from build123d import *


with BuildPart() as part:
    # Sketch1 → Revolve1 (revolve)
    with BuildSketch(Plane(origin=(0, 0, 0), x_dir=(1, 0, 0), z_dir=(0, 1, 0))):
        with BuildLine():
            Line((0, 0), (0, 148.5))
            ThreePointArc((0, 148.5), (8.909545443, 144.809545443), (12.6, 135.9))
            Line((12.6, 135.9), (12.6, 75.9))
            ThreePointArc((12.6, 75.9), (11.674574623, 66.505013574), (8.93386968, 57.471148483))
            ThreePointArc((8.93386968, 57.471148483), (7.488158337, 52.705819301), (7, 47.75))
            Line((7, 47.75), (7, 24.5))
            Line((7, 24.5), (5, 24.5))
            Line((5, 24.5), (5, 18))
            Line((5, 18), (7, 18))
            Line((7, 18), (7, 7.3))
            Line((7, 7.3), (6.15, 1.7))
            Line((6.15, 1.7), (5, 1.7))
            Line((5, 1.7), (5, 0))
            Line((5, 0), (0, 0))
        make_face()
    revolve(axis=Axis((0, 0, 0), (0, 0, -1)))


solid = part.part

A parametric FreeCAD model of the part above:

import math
import FreeCAD as App
import Part
import Sketcher

V = App.Vector

doc = App.newDocument("Part")
body = doc.addObject("PartDesign::Body", "Body")

sketch1 = body.newObject("Sketcher::SketchObject", "Sketch")
sketch1.AttachmentSupport = (doc.getObject("XZ_Plane"), [""])
sketch1.MapMode = "FlatFace"
sketch1.addGeometry([
    Part.LineSegment(V(0, -148.5, 0), V(0, 0, 0)),
    Part.LineSegment(V(0, 0, 0), V(5, 0, 0)),
    Part.LineSegment(V(5, 0, 0), V(5, -1.7, 0)),
    Part.LineSegment(V(5, -1.7, 0), V(6.15, -1.7, 0)),
    Part.LineSegment(V(6.15, -1.7, 0), V(7, -7.3, 0)),
    Part.LineSegment(V(7, -7.3, 0), V(7, -18, 0)),
    Part.LineSegment(V(7, -18, 0), V(5, -18, 0)),
    Part.LineSegment(V(5, -18, 0), V(5, -24.5, 0)),
    Part.LineSegment(V(5, -24.5, 0), V(7, -24.5, 0)),
    Part.LineSegment(V(7, -24.5, 0), V(7, -47.75, 0)),
    Part.ArcOfCircle(Part.Circle(V(32.4, -47.75, 0), V(0, 0, 1), 25.4), math.radians(-180), math.radians(-157.497585)),
    Part.ArcOfCircle(Part.Circle(V(-35.552009, -75.9, 0), V(0, 0, 1), 48.152009), math.radians(0), math.radians(22.502416)),
    Part.LineSegment(V(12.6, -75.9, 0), V(12.6, -135.9, 0)),
    Part.ArcOfCircle(Part.Circle(V(0, -135.9, 0), V(0, 0, 1), 12.6), math.radians(-90), math.radians(0)),
], False)
sketch1.addConstraint([
    Sketcher.Constraint("Coincident", 0, 2, 1, 1),
    Sketcher.Constraint("Coincident", 1, 2, 2, 1),
    Sketcher.Constraint("Coincident", 2, 2, 3, 1),
    Sketcher.Constraint("Coincident", 3, 2, 4, 1),
    Sketcher.Constraint("Coincident", 4, 2, 5, 1),
    Sketcher.Constraint("Coincident", 5, 2, 6, 1),
    Sketcher.Constraint("Coincident", 6, 2, 7, 1),
    Sketcher.Constraint("Coincident", 7, 2, 8, 1),
    Sketcher.Constraint("Coincident", 8, 2, 9, 1),
    Sketcher.Constraint("Tangent", 9, 2, 10, 1),
    Sketcher.Constraint("Tangent", 10, 2, 11, 2),
    Sketcher.Constraint("Tangent", 11, 1, 12, 1),
    Sketcher.Constraint("Tangent", 12, 2, 13, 2),
    Sketcher.Constraint("Coincident", 13, 1, 0, 1),
    Sketcher.Constraint("Vertical", 0),
    Sketcher.Constraint("Horizontal", 1),
    Sketcher.Constraint("Vertical", 2),
    Sketcher.Constraint("Horizontal", 3),
    Sketcher.Constraint("Vertical", 5),
    Sketcher.Constraint("Horizontal", 6),
    Sketcher.Constraint("Vertical", 7),
    Sketcher.Constraint("Horizontal", 8),
    Sketcher.Constraint("Vertical", 9),
    Sketcher.Constraint("Vertical", 12),
    Sketcher.Constraint("Coincident", 0, 2, -1, 1),
    Sketcher.Constraint("PointOnObject", 13, 3, -2),
    Sketcher.Constraint("Vertical", 2, 2, 6, 2),
    Sketcher.Constraint("Vertical", 5, 2, 8, 2),
    Sketcher.Constraint("Radius", 10, 25.4),
    Sketcher.Constraint("Radius", 13, 12.6),
    Sketcher.Constraint("DistanceX", 1, 1, 1, 2, 5.0),
    Sketcher.Constraint("DistanceX", 6, 2, 6, 1, 2.0),
    Sketcher.Constraint("DistanceY", 12, 2, 12, 1, 60.0),
    Sketcher.Constraint("DistanceY", 0, 1, 0, 2, 148.5),
    Sketcher.Constraint("DistanceY", 2, 2, 2, 1, 1.7),
    Sketcher.Constraint("DistanceY", 5, 2, 5, 1, 10.7),
    Sketcher.Constraint("DistanceY", 7, 2, 7, 1, 6.5),
    Sketcher.Constraint("DistanceY", 5, 2, -1, 1, 18.0),
    Sketcher.Constraint("DistanceX", 3, 1, 3, 2, 1.15),
    Sketcher.Constraint("DistanceY", 9, 2, 9, 1, 23.25),
])
revolution = body.newObject("PartDesign::Revolution", "Revolution")
revolution.Profile = sketch1
revolution.ReferenceAxis = (sketch1, ["V_Axis"])
revolution.Angle = 360

doc.recompute()
